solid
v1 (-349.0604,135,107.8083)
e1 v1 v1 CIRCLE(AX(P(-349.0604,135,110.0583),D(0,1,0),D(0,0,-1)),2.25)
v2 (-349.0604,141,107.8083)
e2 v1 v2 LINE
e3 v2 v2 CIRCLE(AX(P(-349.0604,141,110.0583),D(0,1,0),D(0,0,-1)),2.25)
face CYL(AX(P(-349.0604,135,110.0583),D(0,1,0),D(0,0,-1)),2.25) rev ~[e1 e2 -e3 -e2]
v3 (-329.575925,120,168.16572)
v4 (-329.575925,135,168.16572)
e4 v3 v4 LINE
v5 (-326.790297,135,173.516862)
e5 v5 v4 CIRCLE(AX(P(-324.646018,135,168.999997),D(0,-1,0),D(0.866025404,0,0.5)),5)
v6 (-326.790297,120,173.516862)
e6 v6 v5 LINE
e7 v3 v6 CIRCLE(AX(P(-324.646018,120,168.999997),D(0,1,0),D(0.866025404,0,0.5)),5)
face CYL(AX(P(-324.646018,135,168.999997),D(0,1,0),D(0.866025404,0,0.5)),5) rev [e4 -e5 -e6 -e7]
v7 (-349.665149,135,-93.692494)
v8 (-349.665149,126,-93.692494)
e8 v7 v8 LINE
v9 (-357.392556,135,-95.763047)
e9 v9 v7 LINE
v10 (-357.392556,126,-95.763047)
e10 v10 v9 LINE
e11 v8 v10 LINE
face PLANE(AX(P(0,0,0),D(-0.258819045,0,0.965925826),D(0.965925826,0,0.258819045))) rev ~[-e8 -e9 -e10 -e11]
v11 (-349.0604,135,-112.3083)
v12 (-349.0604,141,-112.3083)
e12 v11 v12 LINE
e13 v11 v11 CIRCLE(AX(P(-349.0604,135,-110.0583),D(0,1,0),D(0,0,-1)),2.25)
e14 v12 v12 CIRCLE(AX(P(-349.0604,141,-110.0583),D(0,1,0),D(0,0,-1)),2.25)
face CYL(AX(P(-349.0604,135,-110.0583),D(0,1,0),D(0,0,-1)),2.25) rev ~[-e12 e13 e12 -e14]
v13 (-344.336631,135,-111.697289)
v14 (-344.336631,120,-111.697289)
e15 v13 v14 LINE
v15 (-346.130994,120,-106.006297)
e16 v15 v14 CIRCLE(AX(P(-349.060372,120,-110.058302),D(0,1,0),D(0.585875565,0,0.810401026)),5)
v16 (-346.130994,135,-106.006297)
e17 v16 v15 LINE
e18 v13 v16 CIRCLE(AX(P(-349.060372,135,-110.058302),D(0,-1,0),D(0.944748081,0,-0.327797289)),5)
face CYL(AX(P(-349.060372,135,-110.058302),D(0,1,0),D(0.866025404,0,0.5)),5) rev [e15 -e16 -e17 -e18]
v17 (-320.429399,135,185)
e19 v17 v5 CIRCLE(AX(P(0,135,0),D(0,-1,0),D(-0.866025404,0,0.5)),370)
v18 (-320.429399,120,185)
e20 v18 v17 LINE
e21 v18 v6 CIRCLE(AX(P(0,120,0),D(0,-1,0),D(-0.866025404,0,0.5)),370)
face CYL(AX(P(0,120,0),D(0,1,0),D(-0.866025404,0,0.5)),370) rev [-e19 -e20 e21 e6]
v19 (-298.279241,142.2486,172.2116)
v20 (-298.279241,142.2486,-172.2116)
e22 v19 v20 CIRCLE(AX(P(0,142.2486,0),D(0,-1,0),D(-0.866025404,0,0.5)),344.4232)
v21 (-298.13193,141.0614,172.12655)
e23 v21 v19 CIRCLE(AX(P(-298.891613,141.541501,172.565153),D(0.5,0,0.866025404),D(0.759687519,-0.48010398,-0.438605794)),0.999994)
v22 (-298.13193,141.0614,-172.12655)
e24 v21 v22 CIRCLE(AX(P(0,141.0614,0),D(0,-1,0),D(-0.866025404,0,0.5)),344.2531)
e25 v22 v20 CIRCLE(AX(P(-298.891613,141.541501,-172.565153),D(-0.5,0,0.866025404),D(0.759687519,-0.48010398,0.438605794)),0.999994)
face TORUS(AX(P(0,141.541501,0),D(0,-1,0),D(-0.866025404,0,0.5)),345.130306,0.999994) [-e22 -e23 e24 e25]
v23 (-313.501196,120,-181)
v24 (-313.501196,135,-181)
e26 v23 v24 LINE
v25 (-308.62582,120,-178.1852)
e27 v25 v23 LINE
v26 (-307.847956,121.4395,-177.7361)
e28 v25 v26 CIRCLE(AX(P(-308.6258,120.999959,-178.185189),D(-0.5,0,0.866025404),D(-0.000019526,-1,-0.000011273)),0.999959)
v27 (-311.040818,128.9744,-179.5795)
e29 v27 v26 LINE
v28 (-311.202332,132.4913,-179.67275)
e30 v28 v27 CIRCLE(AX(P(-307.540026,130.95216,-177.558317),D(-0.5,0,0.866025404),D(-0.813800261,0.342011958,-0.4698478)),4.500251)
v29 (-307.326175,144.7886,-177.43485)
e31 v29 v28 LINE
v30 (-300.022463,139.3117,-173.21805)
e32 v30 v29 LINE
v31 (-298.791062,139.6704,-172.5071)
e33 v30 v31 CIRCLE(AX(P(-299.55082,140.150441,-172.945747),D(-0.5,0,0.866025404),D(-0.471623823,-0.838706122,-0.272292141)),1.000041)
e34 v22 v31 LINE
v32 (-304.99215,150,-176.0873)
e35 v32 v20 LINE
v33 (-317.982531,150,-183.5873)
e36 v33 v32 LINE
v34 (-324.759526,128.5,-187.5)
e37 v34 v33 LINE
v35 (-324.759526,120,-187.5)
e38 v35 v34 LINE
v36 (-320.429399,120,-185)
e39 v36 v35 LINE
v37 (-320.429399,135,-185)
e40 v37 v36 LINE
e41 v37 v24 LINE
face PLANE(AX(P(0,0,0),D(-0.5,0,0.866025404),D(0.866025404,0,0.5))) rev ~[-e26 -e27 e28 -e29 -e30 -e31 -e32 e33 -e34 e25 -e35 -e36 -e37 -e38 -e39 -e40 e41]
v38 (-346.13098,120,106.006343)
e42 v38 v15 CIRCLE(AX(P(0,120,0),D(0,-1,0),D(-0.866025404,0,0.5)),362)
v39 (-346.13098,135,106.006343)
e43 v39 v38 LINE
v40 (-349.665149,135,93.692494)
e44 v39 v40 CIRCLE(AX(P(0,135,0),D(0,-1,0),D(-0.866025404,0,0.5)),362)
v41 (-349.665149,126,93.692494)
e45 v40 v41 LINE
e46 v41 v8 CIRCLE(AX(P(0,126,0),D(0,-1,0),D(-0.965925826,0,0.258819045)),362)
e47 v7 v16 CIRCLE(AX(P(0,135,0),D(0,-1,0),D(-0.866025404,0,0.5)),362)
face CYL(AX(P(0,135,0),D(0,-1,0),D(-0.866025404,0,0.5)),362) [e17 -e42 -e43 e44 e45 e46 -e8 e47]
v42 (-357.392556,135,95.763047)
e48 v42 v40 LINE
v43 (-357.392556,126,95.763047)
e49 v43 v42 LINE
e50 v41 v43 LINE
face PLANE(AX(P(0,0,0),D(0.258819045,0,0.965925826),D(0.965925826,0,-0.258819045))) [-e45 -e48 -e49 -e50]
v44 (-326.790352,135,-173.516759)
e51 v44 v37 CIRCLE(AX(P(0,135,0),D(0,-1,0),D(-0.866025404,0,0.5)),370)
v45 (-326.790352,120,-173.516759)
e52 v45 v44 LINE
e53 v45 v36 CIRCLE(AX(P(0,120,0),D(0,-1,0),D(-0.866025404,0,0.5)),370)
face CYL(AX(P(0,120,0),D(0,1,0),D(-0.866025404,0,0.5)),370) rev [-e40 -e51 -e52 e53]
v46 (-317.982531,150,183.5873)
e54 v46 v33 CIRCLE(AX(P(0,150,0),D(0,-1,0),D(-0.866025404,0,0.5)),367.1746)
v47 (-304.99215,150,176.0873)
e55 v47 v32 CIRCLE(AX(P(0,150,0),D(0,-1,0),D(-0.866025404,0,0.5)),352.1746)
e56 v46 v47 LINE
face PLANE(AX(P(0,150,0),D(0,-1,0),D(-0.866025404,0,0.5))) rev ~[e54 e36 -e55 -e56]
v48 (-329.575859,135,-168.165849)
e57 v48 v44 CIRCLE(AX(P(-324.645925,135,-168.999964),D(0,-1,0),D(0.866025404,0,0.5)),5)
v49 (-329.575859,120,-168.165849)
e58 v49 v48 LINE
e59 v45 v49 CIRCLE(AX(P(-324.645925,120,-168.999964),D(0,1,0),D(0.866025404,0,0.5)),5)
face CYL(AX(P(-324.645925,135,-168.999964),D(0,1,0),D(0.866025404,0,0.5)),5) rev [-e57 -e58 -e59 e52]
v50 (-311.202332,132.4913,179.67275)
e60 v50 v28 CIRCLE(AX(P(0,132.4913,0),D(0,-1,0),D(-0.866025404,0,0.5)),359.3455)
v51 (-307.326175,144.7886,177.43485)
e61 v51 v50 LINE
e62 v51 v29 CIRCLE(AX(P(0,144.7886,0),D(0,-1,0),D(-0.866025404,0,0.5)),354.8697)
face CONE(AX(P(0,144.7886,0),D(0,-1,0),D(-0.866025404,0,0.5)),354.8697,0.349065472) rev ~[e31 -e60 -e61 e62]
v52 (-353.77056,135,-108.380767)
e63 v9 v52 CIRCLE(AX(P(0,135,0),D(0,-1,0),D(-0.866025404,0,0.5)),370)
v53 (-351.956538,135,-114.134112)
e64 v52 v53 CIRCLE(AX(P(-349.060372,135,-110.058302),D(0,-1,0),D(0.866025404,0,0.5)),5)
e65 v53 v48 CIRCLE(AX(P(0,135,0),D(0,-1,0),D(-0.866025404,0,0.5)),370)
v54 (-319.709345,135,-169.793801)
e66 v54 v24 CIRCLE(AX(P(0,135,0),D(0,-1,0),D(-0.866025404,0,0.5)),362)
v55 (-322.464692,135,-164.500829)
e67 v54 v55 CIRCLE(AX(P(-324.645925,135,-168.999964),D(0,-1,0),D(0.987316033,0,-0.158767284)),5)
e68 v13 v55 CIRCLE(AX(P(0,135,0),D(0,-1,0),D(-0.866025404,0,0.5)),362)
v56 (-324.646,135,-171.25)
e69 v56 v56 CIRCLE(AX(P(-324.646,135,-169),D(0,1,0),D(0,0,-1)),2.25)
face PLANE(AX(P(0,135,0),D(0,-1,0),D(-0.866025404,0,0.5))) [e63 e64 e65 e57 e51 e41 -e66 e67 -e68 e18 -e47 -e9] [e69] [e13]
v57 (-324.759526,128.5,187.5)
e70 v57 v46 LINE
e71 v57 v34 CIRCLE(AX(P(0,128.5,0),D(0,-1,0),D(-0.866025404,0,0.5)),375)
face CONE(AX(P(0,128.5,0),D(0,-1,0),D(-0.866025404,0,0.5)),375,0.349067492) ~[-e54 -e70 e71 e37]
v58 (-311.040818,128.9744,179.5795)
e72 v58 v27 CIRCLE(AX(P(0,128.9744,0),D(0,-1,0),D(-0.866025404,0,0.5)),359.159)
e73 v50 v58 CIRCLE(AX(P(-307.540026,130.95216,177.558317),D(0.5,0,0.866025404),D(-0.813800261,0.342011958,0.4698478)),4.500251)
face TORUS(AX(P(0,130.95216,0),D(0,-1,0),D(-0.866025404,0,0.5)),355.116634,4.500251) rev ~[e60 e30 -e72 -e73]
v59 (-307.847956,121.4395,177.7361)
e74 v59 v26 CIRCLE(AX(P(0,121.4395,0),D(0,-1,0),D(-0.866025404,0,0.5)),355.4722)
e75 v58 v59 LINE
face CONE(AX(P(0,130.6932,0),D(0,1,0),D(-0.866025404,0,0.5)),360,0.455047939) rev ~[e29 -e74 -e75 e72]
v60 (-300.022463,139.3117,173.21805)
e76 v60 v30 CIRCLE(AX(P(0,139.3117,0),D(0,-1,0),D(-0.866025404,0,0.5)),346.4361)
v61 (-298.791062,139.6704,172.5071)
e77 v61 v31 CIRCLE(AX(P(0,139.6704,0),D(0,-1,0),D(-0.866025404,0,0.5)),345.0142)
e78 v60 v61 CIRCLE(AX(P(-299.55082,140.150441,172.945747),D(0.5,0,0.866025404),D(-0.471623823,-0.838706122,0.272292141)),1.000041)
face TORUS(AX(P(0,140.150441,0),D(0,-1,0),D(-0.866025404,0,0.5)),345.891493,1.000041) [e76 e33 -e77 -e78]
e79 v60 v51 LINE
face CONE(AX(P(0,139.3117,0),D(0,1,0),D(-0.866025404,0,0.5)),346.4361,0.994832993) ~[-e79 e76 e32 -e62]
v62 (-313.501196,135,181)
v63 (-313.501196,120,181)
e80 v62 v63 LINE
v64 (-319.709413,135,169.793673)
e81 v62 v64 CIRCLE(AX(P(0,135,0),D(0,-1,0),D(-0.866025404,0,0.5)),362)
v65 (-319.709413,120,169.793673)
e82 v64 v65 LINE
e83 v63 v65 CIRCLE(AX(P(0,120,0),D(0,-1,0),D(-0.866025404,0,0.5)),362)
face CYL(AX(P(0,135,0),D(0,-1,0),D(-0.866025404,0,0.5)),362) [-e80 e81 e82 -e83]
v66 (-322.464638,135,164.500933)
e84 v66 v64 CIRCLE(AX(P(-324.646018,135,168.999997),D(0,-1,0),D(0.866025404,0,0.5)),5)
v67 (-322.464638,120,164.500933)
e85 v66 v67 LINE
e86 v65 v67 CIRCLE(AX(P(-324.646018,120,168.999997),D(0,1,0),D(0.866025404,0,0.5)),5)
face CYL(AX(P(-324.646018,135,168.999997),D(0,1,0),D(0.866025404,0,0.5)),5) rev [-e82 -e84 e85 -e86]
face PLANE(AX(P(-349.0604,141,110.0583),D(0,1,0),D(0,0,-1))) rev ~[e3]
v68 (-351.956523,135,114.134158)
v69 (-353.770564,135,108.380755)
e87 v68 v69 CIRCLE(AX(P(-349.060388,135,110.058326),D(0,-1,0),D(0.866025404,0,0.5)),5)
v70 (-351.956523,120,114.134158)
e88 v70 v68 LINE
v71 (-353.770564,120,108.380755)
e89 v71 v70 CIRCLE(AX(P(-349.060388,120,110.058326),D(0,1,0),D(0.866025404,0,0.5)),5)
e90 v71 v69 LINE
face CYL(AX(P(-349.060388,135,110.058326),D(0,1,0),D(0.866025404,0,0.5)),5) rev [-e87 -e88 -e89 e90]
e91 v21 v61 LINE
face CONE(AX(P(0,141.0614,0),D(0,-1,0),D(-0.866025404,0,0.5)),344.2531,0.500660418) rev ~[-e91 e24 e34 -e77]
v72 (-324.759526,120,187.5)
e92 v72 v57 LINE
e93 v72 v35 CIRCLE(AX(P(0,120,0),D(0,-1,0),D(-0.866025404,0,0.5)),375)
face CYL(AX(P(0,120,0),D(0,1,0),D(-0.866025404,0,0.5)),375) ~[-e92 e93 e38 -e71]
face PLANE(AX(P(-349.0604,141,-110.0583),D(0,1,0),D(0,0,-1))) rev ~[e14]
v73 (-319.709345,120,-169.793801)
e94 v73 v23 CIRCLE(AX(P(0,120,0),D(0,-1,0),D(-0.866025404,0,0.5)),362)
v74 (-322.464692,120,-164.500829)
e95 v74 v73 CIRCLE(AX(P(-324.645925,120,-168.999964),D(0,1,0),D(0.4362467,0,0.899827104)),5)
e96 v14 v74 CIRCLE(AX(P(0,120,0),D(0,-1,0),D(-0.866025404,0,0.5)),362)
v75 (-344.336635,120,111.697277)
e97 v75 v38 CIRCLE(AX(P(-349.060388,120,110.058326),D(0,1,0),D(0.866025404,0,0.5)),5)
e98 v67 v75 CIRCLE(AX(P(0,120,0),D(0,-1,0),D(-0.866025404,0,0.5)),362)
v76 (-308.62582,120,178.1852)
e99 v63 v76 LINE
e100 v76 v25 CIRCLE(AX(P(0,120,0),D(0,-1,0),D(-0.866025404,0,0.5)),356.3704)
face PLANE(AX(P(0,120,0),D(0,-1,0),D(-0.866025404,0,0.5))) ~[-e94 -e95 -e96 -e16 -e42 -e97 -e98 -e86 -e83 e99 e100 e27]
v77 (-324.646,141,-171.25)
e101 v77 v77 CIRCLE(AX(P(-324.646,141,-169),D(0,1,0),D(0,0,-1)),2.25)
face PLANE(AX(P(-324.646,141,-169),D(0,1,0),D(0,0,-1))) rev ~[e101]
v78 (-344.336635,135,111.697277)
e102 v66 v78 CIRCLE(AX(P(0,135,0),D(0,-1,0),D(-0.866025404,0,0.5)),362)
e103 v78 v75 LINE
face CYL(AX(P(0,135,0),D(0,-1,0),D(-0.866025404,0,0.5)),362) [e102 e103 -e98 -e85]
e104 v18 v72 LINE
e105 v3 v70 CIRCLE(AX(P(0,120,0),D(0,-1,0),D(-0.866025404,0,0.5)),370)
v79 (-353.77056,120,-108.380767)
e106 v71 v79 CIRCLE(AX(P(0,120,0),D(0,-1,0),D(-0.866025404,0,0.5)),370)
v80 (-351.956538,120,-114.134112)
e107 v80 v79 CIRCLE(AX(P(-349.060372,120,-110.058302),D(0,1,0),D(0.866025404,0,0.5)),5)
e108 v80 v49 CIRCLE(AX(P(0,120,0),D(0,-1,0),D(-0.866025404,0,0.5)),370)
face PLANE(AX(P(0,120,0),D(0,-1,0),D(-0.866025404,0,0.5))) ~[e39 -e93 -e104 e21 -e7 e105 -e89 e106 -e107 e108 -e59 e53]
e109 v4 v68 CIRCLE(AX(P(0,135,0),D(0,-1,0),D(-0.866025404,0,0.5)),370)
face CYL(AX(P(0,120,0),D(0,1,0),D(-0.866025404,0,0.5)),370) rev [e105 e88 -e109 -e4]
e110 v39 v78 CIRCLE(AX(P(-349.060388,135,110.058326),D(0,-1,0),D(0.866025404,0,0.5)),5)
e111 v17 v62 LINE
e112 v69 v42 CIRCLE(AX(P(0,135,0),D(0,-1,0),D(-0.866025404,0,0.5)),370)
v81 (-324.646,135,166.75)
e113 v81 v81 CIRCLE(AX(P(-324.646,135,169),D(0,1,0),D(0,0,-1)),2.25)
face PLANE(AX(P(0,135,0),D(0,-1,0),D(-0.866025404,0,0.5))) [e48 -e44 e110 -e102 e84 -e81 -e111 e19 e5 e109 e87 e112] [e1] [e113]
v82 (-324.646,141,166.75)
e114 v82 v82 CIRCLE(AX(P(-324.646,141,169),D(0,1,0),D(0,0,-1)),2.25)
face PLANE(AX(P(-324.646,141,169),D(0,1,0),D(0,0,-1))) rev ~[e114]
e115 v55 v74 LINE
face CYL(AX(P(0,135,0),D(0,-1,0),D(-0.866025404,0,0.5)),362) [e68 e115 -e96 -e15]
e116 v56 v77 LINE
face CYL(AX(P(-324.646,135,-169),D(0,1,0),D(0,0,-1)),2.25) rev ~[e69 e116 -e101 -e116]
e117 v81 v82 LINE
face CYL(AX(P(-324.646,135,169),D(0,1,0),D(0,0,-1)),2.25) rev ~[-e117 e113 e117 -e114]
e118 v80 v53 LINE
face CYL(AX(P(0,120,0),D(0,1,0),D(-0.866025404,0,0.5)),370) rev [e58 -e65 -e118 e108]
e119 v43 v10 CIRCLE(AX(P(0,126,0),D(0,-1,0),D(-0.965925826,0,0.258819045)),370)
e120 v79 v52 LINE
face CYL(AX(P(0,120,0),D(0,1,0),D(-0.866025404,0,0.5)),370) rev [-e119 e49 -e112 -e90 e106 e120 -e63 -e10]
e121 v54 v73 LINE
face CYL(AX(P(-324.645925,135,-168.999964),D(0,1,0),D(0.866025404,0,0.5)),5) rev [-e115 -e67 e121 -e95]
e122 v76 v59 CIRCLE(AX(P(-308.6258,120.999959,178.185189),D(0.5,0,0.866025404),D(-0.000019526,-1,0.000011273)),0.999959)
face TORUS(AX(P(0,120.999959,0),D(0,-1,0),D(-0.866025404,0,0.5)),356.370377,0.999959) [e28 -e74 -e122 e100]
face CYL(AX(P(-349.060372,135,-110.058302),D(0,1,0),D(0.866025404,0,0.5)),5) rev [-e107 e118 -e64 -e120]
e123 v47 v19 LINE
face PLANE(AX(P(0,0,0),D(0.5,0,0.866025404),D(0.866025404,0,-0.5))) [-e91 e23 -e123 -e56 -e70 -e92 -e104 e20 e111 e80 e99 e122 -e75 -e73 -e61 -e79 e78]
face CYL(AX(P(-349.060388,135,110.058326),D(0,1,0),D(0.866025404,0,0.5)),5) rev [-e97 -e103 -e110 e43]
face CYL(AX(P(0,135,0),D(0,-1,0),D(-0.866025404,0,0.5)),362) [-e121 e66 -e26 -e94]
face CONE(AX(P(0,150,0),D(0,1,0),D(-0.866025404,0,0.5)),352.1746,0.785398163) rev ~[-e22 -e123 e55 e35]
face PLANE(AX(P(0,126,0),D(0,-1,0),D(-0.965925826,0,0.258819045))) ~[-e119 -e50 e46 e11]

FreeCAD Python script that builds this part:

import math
import FreeCAD as App
import Part
import Sketcher
from FreeCAD import Vector
Q = App.Units.Quantity


def add_polygon(sketch, points):
    """Adds a closed chain of lines whose ends are joined by coincident constraints."""
    first, n = sketch.GeometryCount, len(points)
    for a, b in zip(points, points[1:] + points[:1]):
        sketch.addGeometry(Part.LineSegment(App.Vector(*a, 0), App.Vector(*b, 0)), False)
    for i in range(n):
        sketch.addConstraint(Sketcher.Constraint("Coincident", first + i, 2, first + (i + 1) % n, 1))

doc = App.newDocument("Part")
body = doc.addObject("PartDesign::Body", "Body")

sketch1 = body.newObject("Sketcher::SketchObject", "Sketch")
sketch1.AttachmentSupport = (doc.getObject("XY_Plane"), [""])
sketch1.MapMode = "FlatFace"
sketch1.addGeometry([
    Part.LineSegment(Vector(-354.8697, 144.7886, 0), Vector(-346.4361, 139.3117, 0)),
    Part.ArcOfCircle(Part.Circle(Vector(-345.8915, 140.1504, 0), Vector(0, 0, 1), 1.000003), math.radians(-122.997206), math.radians(-28.684535)),
    Part.LineSegment(Vector(-345.0142, 139.6704, 0), Vector(-344.2531, 141.0614, 0)),
    Part.ArcOfCircle(Part.Circle(Vector(-345.1303, 141.5415, 0), Vector(0, 0, 1), 0.999988), math.radians(-28.692312), math.radians(45)),
    Part.LineSegment(Vector(-344.4232, 142.2486, 0), Vector(-352.1746, 150, 0)),
    Part.LineSegment(Vector(-352.1746, 150, 0), Vector(-367.1746, 150, 0)),
    Part.LineSegment(Vector(-367.1746, 150, 0), Vector(-375, 128.5, 0)),
    Part.LineSegment(Vector(-375, 128.5, 0), Vector(-375, 120, 0)),
    Part.LineSegment(Vector(-375, 120, 0), Vector(-370, 120, 0)),
    Part.LineSegment(Vector(-370, 120, 0), Vector(-370, 135, 0)),
    Part.LineSegment(Vector(-370, 135, 0), Vector(-362, 135, 0)),
    Part.LineSegment(Vector(-362, 135, 0), Vector(-362, 120, 0)),
    Part.LineSegment(Vector(-362, 120, 0), Vector(-356.3704, 120, 0)),
    Part.ArcOfCircle(Part.Circle(Vector(-356.3704, 121, 0), Vector(0, 0, 1), 1), math.radians(-90), math.radians(26.073056)),
    Part.LineSegment(Vector(-355.4722, 121.4395, 0), Vector(-359.158998, 128.974401, 0)),
    Part.ArcOfCircle(Part.Circle(Vector(-355.1169, 130.9522, 0), Vector(0, 0, 1), 4.499987), math.radians(159.999815), math.radians(206.072509)),
    Part.LineSegment(Vector(-359.345541, 132.491315, 0), Vector(-354.8697, 144.7886, 0)),
], False)
sketch1.addConstraint([
    Sketcher.Constraint("Tangent", 0, 2, 1, 1),
    Sketcher.Constraint("Tangent", 1, 2, 2, 1),
    Sketcher.Constraint("Tangent", 2, 2, 3, 1),
    Sketcher.Constraint("Tangent", 3, 2, 4, 1),
    Sketcher.Constraint("Coincident", 4, 2, 5, 1),
    Sketcher.Constraint("Coincident", 5, 2, 6, 1),
    Sketcher.Constraint("Coincident", 6, 2, 7, 1),
    Sketcher.Constraint("Coincident", 7, 2, 8, 1),
    Sketcher.Constraint("Coincident", 8, 2, 9, 1),
    Sketcher.Constraint("Coincident", 9, 2, 10, 1),
    Sketcher.Constraint("Coincident", 10, 2, 11, 1),
    Sketcher.Constraint("Coincident", 11, 2, 12, 1),
    Sketcher.Constraint("Tangent", 12, 2, 13, 1),
    Sketcher.Constraint("Tangent", 13, 2, 14, 1),
    Sketcher.Constraint("Tangent", 14, 2, 15, 2),
    Sketcher.Constraint("Tangent", 15, 1, 16, 1),
    Sketcher.Constraint("Coincident", 16, 2, 0, 1),
    Sketcher.Constraint("Horizontal", 5),
    Sketcher.Constraint("Vertical", 7),
    Sketcher.Constraint("Horizontal", 8),
    Sketcher.Constraint("Vertical", 9),
    Sketcher.Constraint("Horizontal", 10),
    Sketcher.Constraint("Vertical", 11),
    Sketcher.Constraint("Horizontal", 12),
    Sketcher.Constraint("Equal", 1, 3),
    Sketcher.Constraint("Equal", 3, 13),
    Sketcher.Constraint("Parallel", 6, 16),
    Sketcher.Constraint("Horizontal", 8, 2, 11, 2),
    Sketcher.Constraint("Equal", 5, 9),
    Sketcher.Constraint("Radius", 1, 1.0),
    Sketcher.Constraint("Radius", 15, 4.5),
    Sketcher.Constraint("DistanceX", 5, 2, 5, 1, 15.0),
    Sketcher.Constraint("DistanceX", 10, 1, 10, 2, 8.0),
    Sketcher.Constraint("Angle", 4, Q("135 deg")),
    Sketcher.Constraint("DistanceY", 7, 2, 7, 1, 8.5),
    Sketcher.Constraint("DistanceY", -1, 1, 7, 2, 120.0),
    Sketcher.Constraint("DistanceY", 7, 2, 5, 2, 30.0),
    Sketcher.Constraint("DistanceX", 8, 1, 8, 2, 5.0),
    Sketcher.Constraint("Angle", 0, Q("-33.0003 deg")),
    Sketcher.Constraint("Angle", 6, Q("-110 deg")),
    Sketcher.Constraint("DistanceX", 6, 2, -1, 1, 375.0),
    Sketcher.Constraint("DistanceX", 13, 3, 3, 3, 11.24),
    Sketcher.Constraint("DistanceY", 1, 2, 1, 3, 0.48),
    Sketcher.Constraint("DistanceY", 3, 2, 16, 2, 2.54),
    Sketcher.Constraint("Distance", 0, 10.056),
    Sketcher.Constraint("DistanceX", 12, 1, 12, 2, 5.6296),
    Sketcher.Constraint("DistanceX", 15, 3, -1, 1, 355.117),
])
revolution = body.newObject("PartDesign::Revolution", "Revolution")
revolution.Profile = sketch1
revolution.ReferenceAxis = (sketch1, ["V_Axis"])
revolution.Angle = 60
revolution.Midplane = True

sketch2 = body.newObject("Sketcher::SketchObject", "Sketch001")
sketch2.AttachmentSupport = (doc.getObject("XY_Plane"), [""])
sketch2.MapMode = "FlatFace"
add_polygon(sketch2, [(-370, 126), (-362, 126), (-362, 135), (-370, 135)])
sketch2.addConstraint([
    Sketcher.Constraint("Horizontal", 0),
    Sketcher.Constraint("Vertical", 1),
    Sketcher.Constraint("Horizontal", 2),
    Sketcher.Constraint("Vertical", 3),
    Sketcher.Constraint("DistanceX", 0, 1, 0, 2, 8.0),
    Sketcher.Constraint("DistanceY", -1, 1, 1, 2, 135.0),
    Sketcher.Constraint("DistanceY", 1, 1, 1, 2, 9.0),
    Sketcher.Constraint("DistanceX", 0, 2, -1, 1, 362.0),
])
revolution2 = body.newObject("PartDesign::Revolution", "Revolution001")
revolution2.Profile = sketch2
revolution2.ReferenceAxis = (sketch2, ["V_Axis"])
revolution2.Angle = 30
revolution2.Midplane = True

sketch3 = body.newObject("Sketcher::SketchObject", "Sketch002")
sketch3.AttachmentSupport = (doc.getObject("XZ_Plane"), [""])
sketch3.MapMode = "FlatFace"
sketch3.AttachmentOffset = App.Placement(Vector(0, 0, -135), App.Rotation())
sketch3.addGeometry([
    Part.Circle(Vector(-324.646, -169, 0), Vector(0, 0, 1), 2.25),
    Part.Circle(Vector(-349.0604, -110.0583, 0), Vector(0, 0, 1), 2.25),
    Part.Circle(Vector(-349.0604, 110.0583, 0), Vector(0, 0, 1), 2.25),
    Part.Circle(Vector(-324.646, 169, 0), Vector(0, 0, 1), 2.25),
], False)
sketch3.addConstraint([
    Sketcher.Constraint("Equal", 0, 1),
    Sketcher.Constraint("Equal", 1, 2),
    Sketcher.Constraint("Equal", 2, 3),
    Sketcher.Constraint("Symmetric", 1, 3, 2, 3, -1),
    Sketcher.Constraint("Symmetric", 0, 3, 3, 3, -1),
    Sketcher.Constraint("Diameter", 0, 4.5),
    Sketcher.Constraint("DistanceY", 0, 3, -1, 1, 169.0),
    Sketcher.Constraint("DistanceX", 0, 3, -1, 1, 324.646),
    Sketcher.Constraint("DistanceX", 1, 3, -1, 1, 349.0604),
    Sketcher.Constraint("DistanceY", 1, 3, -1, 1, 110.0583),
])
doc.recompute()
hole = body.newObject("PartDesign::Hole", "Hole")
hole.Profile = sketch3
hole.ThreadType = "None"
hole.Diameter = 4.5
hole.DepthType = "Dimension"
hole.Depth = 6
hole.DrillPoint = "Flat"

sketch4 = body.newObject("Sketcher::SketchObject", "Sketch003")
sketch4.AttachmentSupport = (doc.getObject("XZ_Plane"), [""])
sketch4.MapMode = "FlatFace"
sketch4.AttachmentOffset = App.Placement(Vector(0, 0, -135), App.Rotation())
sketch4.addGeometry([
    Part.Circle(Vector(-349.060388, 110.058326, 0), Vector(0, 0, 1), 5),
    Part.Circle(Vector(-349.060372, -110.058302, 0), Vector(0, 0, 1), 5),
    Part.Circle(Vector(-324.646018, 168.999998, 0), Vector(0, 0, 1), 5),
    Part.Circle(Vector(-324.645925, -168.999964, 0), Vector(0, 0, 1), 5),
], False)
sketch4.addConstraint([
    Sketcher.Constraint("Equal", 0, 1),
    Sketcher.Constraint("Equal", 1, 2),
    Sketcher.Constraint("Equal", 2, 3),
    Sketcher.Constraint("Symmetric", 0, 3, 1, 3, -1),
    Sketcher.Constraint("Symmetric", 2, 3, 3, 3, -1),
    Sketcher.Constraint("Diameter", 0, 10.0),
    Sketcher.Constraint("DistanceY", -1, 1, 2, 3, 169.0),
    Sketcher.Constraint("DistanceX", 2, 3, -1, 1, 324.646),
    Sketcher.Constraint("DistanceX", 0, 3, -1, 1, 349.0604),
    Sketcher.Constraint("DistanceY", -1, 1, 0, 3, 110.0583),
])
pocket1 = body.newObject("PartDesign::Pocket", "Pocket")
pocket1.Profile = sketch4
pocket1.Type = "ThroughAll"
pocket1.Reversed = True

doc.recompute()
